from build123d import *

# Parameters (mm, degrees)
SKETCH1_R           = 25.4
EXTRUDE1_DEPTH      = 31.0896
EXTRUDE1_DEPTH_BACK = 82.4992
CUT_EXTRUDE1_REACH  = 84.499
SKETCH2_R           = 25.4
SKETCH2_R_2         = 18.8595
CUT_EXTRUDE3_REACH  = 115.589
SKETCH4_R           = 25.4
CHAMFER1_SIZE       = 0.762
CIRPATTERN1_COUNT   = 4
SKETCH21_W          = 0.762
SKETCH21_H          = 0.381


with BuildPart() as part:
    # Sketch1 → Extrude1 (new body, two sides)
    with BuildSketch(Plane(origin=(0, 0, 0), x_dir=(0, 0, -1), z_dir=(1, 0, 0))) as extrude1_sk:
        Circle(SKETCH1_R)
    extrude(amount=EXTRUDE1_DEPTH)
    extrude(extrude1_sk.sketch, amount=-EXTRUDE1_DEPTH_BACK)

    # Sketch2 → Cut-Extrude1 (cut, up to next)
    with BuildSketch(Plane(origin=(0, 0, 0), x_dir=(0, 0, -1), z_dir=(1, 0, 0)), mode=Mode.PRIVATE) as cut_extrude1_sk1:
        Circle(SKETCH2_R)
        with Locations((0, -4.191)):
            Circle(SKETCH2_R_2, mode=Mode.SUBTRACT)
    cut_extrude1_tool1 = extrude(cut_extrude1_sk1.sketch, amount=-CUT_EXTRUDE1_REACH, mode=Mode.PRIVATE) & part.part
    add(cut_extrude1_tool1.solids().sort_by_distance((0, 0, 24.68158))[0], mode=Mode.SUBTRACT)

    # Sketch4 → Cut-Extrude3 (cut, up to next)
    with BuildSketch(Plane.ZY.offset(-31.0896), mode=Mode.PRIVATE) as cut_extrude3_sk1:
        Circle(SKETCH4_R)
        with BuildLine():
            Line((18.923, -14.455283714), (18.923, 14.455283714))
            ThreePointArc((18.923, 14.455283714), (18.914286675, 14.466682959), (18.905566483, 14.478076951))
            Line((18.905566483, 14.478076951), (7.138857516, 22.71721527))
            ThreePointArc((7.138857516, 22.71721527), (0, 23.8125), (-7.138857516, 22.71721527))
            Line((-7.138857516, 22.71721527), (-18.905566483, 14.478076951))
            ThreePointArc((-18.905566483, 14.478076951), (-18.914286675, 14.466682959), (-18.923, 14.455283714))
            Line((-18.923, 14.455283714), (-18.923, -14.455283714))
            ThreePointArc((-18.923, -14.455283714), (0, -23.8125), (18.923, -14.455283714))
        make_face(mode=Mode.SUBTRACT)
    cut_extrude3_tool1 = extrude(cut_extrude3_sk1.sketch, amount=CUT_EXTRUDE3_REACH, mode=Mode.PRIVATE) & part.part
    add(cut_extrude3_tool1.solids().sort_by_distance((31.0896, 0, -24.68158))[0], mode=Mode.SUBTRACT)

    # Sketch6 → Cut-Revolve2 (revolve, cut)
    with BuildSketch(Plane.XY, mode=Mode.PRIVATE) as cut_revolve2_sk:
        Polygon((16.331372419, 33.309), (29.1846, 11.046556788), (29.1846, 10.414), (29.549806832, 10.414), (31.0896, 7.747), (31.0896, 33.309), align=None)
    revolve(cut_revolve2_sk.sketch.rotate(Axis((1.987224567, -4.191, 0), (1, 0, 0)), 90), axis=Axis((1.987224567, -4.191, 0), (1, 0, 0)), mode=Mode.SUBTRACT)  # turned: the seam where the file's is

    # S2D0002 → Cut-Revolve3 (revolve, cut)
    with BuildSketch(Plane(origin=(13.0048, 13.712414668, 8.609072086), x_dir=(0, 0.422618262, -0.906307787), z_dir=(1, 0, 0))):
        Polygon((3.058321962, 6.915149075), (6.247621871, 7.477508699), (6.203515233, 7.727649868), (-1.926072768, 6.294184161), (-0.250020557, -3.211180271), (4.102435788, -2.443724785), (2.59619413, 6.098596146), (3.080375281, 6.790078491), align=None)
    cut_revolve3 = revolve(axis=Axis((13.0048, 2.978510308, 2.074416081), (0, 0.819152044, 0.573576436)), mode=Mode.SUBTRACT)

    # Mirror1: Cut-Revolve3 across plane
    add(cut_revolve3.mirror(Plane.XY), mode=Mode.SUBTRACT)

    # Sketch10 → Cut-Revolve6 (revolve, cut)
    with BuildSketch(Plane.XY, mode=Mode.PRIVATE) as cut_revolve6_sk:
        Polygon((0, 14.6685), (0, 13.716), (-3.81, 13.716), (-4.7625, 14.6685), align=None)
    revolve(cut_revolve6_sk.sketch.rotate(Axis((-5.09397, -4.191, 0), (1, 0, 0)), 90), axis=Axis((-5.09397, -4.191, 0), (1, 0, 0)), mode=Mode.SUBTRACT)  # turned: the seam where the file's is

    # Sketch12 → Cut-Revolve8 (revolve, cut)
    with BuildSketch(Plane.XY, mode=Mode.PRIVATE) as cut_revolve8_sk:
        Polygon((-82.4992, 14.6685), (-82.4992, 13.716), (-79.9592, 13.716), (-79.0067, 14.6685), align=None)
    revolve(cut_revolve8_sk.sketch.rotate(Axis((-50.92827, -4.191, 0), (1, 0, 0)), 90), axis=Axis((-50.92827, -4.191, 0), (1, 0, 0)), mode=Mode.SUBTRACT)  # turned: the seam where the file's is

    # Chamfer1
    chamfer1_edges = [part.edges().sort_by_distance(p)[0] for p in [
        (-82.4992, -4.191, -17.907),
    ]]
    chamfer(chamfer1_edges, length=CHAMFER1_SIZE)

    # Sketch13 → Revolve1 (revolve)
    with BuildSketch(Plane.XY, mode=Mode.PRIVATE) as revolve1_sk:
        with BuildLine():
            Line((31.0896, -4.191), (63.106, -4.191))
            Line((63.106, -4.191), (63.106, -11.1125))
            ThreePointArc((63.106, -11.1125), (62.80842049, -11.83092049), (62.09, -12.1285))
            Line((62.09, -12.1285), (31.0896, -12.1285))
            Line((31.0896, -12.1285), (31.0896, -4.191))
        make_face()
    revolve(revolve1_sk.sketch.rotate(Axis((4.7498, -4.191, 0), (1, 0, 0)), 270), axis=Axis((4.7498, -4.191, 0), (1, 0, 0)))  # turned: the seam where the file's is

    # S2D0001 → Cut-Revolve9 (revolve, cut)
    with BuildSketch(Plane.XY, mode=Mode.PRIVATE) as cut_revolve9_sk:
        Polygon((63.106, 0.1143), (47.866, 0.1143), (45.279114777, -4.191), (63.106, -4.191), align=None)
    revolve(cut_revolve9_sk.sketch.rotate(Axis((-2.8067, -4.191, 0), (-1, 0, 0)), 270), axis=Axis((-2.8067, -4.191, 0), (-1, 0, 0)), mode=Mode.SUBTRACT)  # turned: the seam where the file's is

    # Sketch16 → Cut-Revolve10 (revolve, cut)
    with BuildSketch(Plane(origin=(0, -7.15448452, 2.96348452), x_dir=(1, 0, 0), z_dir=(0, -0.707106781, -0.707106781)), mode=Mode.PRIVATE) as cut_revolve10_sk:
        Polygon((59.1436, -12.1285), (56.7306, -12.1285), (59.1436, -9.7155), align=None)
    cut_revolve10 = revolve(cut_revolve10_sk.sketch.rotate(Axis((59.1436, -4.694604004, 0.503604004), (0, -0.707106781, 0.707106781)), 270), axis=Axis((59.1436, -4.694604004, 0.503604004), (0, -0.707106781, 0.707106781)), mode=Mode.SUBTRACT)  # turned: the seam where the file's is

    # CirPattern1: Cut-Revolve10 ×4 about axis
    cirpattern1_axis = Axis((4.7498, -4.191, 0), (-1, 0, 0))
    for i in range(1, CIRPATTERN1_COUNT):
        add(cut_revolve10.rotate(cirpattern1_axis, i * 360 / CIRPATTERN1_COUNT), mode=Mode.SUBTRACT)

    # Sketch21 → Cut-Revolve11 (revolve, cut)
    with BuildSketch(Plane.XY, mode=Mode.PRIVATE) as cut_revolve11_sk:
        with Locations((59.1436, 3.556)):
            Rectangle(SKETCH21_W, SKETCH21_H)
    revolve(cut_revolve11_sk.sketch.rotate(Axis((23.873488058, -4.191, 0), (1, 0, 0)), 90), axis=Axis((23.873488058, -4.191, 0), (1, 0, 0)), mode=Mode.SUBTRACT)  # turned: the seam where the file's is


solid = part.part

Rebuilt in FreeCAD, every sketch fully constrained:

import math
import FreeCAD as App
import Part
import Sketcher
from FreeCAD import Vector
Q = App.Units.Quantity


def edges_at(feature, points):
    """Names of the edges that pass closest to the given points."""
    edges = feature.Shape.Edges
    near = lambda p: min(range(len(edges)), key=lambda i: edges[i].distToShape(Part.Vertex(*p))[0])
    return sorted({f"Edge{near(p) + 1}" for p in points})

doc = App.newDocument("Part")
body = doc.addObject("PartDesign::Body", "Body")

# Sketch on YZ plane
sketch1 = body.newObject("Sketcher::SketchObject", "Sketch")
sketch1.AttachmentSupport = (doc.getObject("YZ_Plane"), [""])
sketch1.MapMode = "FlatFace"
sketch1.addGeometry(Part.Circle(Vector(0, 0, 0), Vector(0, 0, 1), 25.4), False)
sketch1.addConstraint([
    Sketcher.Constraint("Coincident", 0, 3, -1, 1),
    Sketcher.Constraint("Diameter", 0, Q("2 in")),
])
pad1 = body.newObject("PartDesign::Pad", "Pad")
pad1.Profile = sketch1
pad1.Type = "TwoLengths"
pad1.Length = Q("1.224 in")
pad1.Length2 = Q("3.248 in")

# Sketch on YZ plane
sketch2 = body.newObject("Sketcher::SketchObject", "Sketch001")
sketch2.AttachmentSupport = (doc.getObject("YZ_Plane"), [""])
sketch2.MapMode = "FlatFace"
sketch2.addGeometry([
    Part.Circle(Vector(0, 0, 0), Vector(0, 0, 1), 25.4),
    Part.Circle(Vector(-4.191, 0, 0), Vector(0, 0, 1), 18.8595),
], False)
sketch2.addConstraint([
    Sketcher.Constraint("Coincident", 0, 3, -1, 1),
    Sketcher.Constraint("PointOnObject", 1, 3, -1),
    Sketcher.Constraint("Diameter", 0, Q("2 in")),
    Sketcher.Constraint("Diameter", 1, Q("1.485 in")),
    Sketcher.Constraint("DistanceX", 1, 3, -1, 1, Q("0.165 in")),
])
pocket1 = body.newObject("PartDesign::Pocket", "Pocket")
pocket1.Profile = sketch2
pocket1.Type = "UpToFirst"

# Sketch on YZ plane
sketch3 = body.newObject("Sketcher::SketchObject", "Sketch002")
sketch3.AttachmentSupport = (doc.getObject("YZ_Plane"), [""])
sketch3.MapMode = "FlatFace"
sketch3.AttachmentOffset = App.Placement(Vector(0, 0, 1.224 * 25.4), App.Rotation())
sketch3.addGeometry([
    Part.Circle(Vector(0, 0, 0), Vector(0, 0, 1), 25.4),  # 0
    Part.LineSegment(Vector(14.455284, 18.923, 0), Vector(-14.455284, 18.923, 0)),  # 1
    Part.ArcOfCircle(Part.Circle(Vector(0, 0, 0), Vector(0, 0, 1), 23.8125), math.radians(127.376217), math.radians(232.623783)),  # 2
    Part.LineSegment(Vector(-14.455284, -18.923, 0), Vector(14.455284, -18.923, 0)),  # 3
    Part.ArcOfCircle(Part.Circle(Vector(0.000919, -0.001202, 0), Vector(0, 0, 1), 23.810987), math.radians(-52.623785), math.radians(-52.554734)),  # 4
    Part.LineSegment(Vector(14.478077, -18.905566, 0), Vector(22.717215, -7.138858, 0)),  # 5
    Part.ArcOfCircle(Part.Circle(Vector(0, 0, 0), Vector(0, 0, 1), 23.8125), math.radians(-17.445263), math.radians(17.445263)),  # 6
    Part.LineSegment(Vector(22.717215, 7.138858, 0), Vector(14.478077, 18.905566, 0)),  # 7
    Part.ArcOfCircle(Part.Circle(Vector(0.000919, 0.001202, 0), Vector(0, 0, 1), 23.810987), math.radians(52.554734), math.radians(52.623785)),  # 8
], False)
sketch3.addConstraint([
    Sketcher.Constraint("Coincident", 1, 2, 2, 1),
    Sketcher.Constraint("Coincident", 2, 2, 3, 1),
    Sketcher.Constraint("Coincident", 3, 2, 4, 1),
    Sketcher.Constraint("Coincident", 4, 2, 5, 1),
    Sketcher.Constraint("Coincident", 5, 2, 6, 1),
    Sketcher.Constraint("Coincident", 6, 2, 7, 1),
    Sketcher.Constraint("Coincident", 7, 2, 8, 1),
    Sketcher.Constraint("Coincident", 8, 2, 1, 1),
    Sketcher.Constraint("Horizontal", 1),
    Sketcher.Constraint("Horizontal", 3),
    Sketcher.Constraint("Coincident", 0, 3, -1, 1),
    Sketcher.Constraint("Coincident", 2, 3, -1, 1),
    Sketcher.Constraint("Coincident", 6, 3, -1, 1),
    Sketcher.Constraint("Equal", 2, 6),
    Sketcher.Constraint("Equal", 4, 8),
    Sketcher.Constraint("Symmetric", 1, 2, 3, 2, -1, 1),
    Sketcher.Constraint("Symmetric", 4, 3, 8, 3, -1),
    Sketcher.Constraint("Vertical", 5, 2, 6, 2),
    Sketcher.Constraint("Vertical", 4, 2, 7, 2),
    Sketcher.Constraint("Diameter", 0, Q("2 in")),
    Sketcher.Constraint("Angle", 5, Q("55 deg")),
    Sketcher.Constraint("Radius", 2, Q("0.9375 in")),
    Sketcher.Constraint("DistanceY", -1, 1, 1, 2, Q("0.745 in")),
    Sketcher.Constraint("Radius", 4, Q("23.810987 mm")),
    Sketcher.Constraint("Distance", 5, Q("14.364499 mm")),
    Sketcher.Constraint("DistanceY", 4, 3, -1, 1, Q("0.001202 mm")),
])
pocket2 = body.newObject("PartDesign::Pocket", "Pocket001")
pocket2.Profile = sketch3
pocket2.Type = "UpToFirst"

# Sketch on XY plane
sketch4 = body.newObject("Sketcher::SketchObject", "Sketch003")
sketch4.AttachmentSupport = (doc.getObject("XY_Plane"), [""])
sketch4.MapMode = "FlatFace"
sketch4.addGeometry([
    Part.LineSegment(Vector(16.331372, 33.309, 0), Vector(29.1846, 11.046557, 0)),  # 0
    Part.LineSegment(Vector(29.1846, 11.046557, 0), Vector(29.1846, 10.414, 0)),  # 1
    Part.LineSegment(Vector(29.1846, 10.414, 0), Vector(29.549807, 10.414, 0)),  # 2
    Part.LineSegment(Vector(29.549807, 10.414, 0), Vector(31.0896, 7.747, 0)),  # 3
    Part.LineSegment(Vector(31.0896, 7.747, 0), Vector(31.0896, 33.309, 0)),  # 4
    Part.LineSegment(Vector(31.0896, 33.309, 0), Vector(16.331372, 33.309, 0)),  # 5
], False)
sketch4.addGeometry(Part.LineSegment(Vector(16.331372, -4.191, 0), Vector(31.0896, -4.191, 0)), True)  # axis
sketch4.addConstraint([
    Sketcher.Constraint("Coincident", 0, 2, 1, 1),
    Sketcher.Constraint("Coincident", 1, 2, 2, 1),
    Sketcher.Constraint("Coincident", 2, 2, 3, 1),
    Sketcher.Constraint("Coincident", 3, 2, 4, 1),
    Sketcher.Constraint("Coincident", 4, 2, 5, 1),
    Sketcher.Constraint("Coincident", 5, 2, 0, 1),
    Sketcher.Constraint("Vertical", 1),
    Sketcher.Constraint("Horizontal", 2),
    Sketcher.Constraint("Vertical", 4),
    Sketcher.Constraint("Horizontal", 5),
    Sketcher.Constraint("Horizontal", 6),
    Sketcher.Constraint("Parallel", 0, 3),
    Sketcher.Constraint("Vertical", 5, 2, 6, 1),
    Sketcher.Constraint("Vertical", 4, 2, 6, 2),
    Sketcher.Constraint("Angle", 0, Q("-60 deg")),
    Sketcher.Constraint("DistanceY", -1, 1, 1, 2, Q("0.41 in")),
    Sketcher.Constraint("DistanceY", 6, 1, 3, 2, Q("0.47 in")),
    Sketcher.Constraint("DistanceX", -1, 1, 0, 2, Q("1.149 in")),
    Sketcher.Constraint("DistanceX", -1, 1, 3, 2, Q("1.224 in")),
    Sketcher.Constraint("DistanceY", -1, 1, 3, 2, Q("0.305 in")),
    Sketcher.Constraint("DistanceY", 4, 1, 4, 2, Q("25.562 mm")),
    Sketcher.Constraint("DistanceX", 5, 2, 5, 1, Q("14.758228 mm")),
])
groove = body.newObject("PartDesign::Groove", "Groove")
groove.Profile = sketch4
groove.ReferenceAxis = (sketch4, ["Axis0"])
groove.Angle = 360

# Sketch on YZ plane
sketch5 = body.newObject("Sketcher::SketchObject", "Sketch004")
sketch5.AttachmentSupport = (doc.getObject("YZ_Plane"), [""])
sketch5.MapMode = "FlatFace"
sketch5.AttachmentOffset = App.Placement(Vector(0, 0, 0.512 * 25.4), App.Rotation())
sketch5.addGeometry([
    Part.LineSegment(Vector(21.272171, 8.759759, 0), Vector(23.129698, 6.106935, 0)),  # 0
    Part.LineSegment(Vector(23.129698, 6.106935, 0), Vector(23.337763, 6.252624, 0)),  # 1
    Part.LineSegment(Vector(23.337763, 6.252624, 0), Vector(18.602889, 13.014724, 0)),  # 2
    Part.LineSegment(Vector(18.602889, 13.014724, 0), Vector(10.696434, 7.478564, 0)),  # 3
    Part.LineSegment(Vector(10.696434, 7.478564, 0), Vector(13.231412, 3.85824, 0)),  # 4
    Part.LineSegment(Vector(13.231412, 3.85824, 0), Vector(20.336819, 8.833499, 0)),  # 5
    Part.LineSegment(Vector(20.336819, 8.833499, 0), Vector(21.168139, 8.686915, 0)),  # 6
    Part.LineSegment(Vector(21.168139, 8.686915, 0), Vector(21.272171, 8.759759, 0)),  # 7
], False)
sketch5.addGeometry(Part.LineSegment(Vector(10.696434, 7.478564, 0), Vector(18.602889, 13.014724, 0)), True)  # axis
sketch5.addConstraint([
    Sketcher.Constraint("Coincident", 0, 2, 1, 1),
    Sketcher.Constraint("Coincident", 1, 2, 2, 1),
    Sketcher.Constraint("Coincident", 2, 2, 3, 1),
    Sketcher.Constraint("Coincident", 3, 2, 4, 1),
    Sketcher.Constraint("Coincident", 4, 2, 5, 1),
    Sketcher.Constraint("Coincident", 5, 2, 6, 1),
    Sketcher.Constraint("Coincident", 6, 2, 7, 1),
    Sketcher.Constraint("Coincident", 7, 2, 0, 1),
    Sketcher.Constraint("Coincident", 8, 1, 3, 2),
    Sketcher.Constraint("Coincident", 8, 2, 2, 2),
    Sketcher.Constraint("Perpendicular", 0, 1),
    Sketcher.Constraint("Perpendicular", 1, 2),
    Sketcher.Constraint("Perpendicular", 2, 3),
    Sketcher.Constraint("Perpendicular", 3, 4),
    Sketcher.Constraint("Perpendicular", 4, 5),
    Sketcher.Constraint("Parallel", 5, 7),
    Sketcher.Constraint("Angle", 0, Q("-55 deg")),
    Sketcher.Constraint("Angle", 6, Q("-10 deg")),
    Sketcher.Constraint("Distance", 1, Q("0.01 in")),
    Sketcher.Constraint("Distance", 3, Q("0.38 in")),
    Sketcher.Constraint("Distance", 2, Q("0.325 in")),
    Sketcher.Constraint("Distance", 4, Q("0.174 in")),
    Sketcher.Constraint("Distance", 7, Q("0.005 in")),
    Sketcher.Constraint("Distance", 0, Q("0.1275 in")),
    Sketcher.Constraint("DistanceX", -1, 1, 0, 2, Q("23.129698 mm")),
    Sketcher.Constraint("DistanceY", -1, 1, 5, 2, Q("8.833499 mm")),
])
groove2 = body.newObject("PartDesign::Groove", "Groove001")
groove2.Profile = sketch5
groove2.ReferenceAxis = (sketch5, ["Axis0"])
groove2.Angle = 360
doc.recompute()

mirrored = body.newObject("PartDesign::Mirrored", "Mirrored")
mirrored.Originals = [groove2]
mirrored.MirrorPlane = (doc.getObject("XY_Plane"), [""])
body.Tip = mirrored

# Sketch on XY plane
sketch6 = body.newObject("Sketcher::SketchObject", "Sketch005")
sketch6.AttachmentSupport = (doc.getObject("XY_Plane"), [""])
sketch6.MapMode = "FlatFace"
sketch6.addGeometry([
    Part.LineSegment(Vector(0, 13.716, 0), Vector(0, 14.6685, 0)),
    Part.LineSegment(Vector(0, 14.6685, 0), Vector(-4.7625, 14.6685, 0)),
    Part.LineSegment(Vector(-4.7625, 14.6685, 0), Vector(-3.81, 13.716, 0)),
    Part.LineSegment(Vector(-3.81, 13.716, 0), Vector(0, 13.716, 0)),
], False)
sketch6.addGeometry(Part.LineSegment(Vector(-4.7625, -4.191, 0), Vector(0, -4.191, 0)), True)  # axis
sketch6.addConstraint([
    Sketcher.Constraint("Coincident", 0, 2, 1, 1),
    Sketcher.Constraint("Coincident", 1, 2, 2, 1),
    Sketcher.Constraint("Coincident", 2, 2, 3, 1),
    Sketcher.Constraint("Coincident", 3, 2, 0, 1),
    Sketcher.Constraint("Vertical", 0),
    Sketcher.Constraint("Horizontal", 1),
    Sketcher.Constraint("Horizontal", 3),
    Sketcher.Constraint("Horizontal", 4),
    Sketcher.Constraint("PointOnObject", 0, 2, -2),
    Sketcher.Constraint("PointOnObject", 4, 2, -2),
    Sketcher.Constraint("Vertical", 1, 2, 4, 1),
    Sketcher.Constraint("Angle", 2, Q("-45 deg")),
    Sketcher.Constraint("DistanceX", 3, 1, 3, 2, Q("0.15 in")),
    Sketcher.Constraint("DistanceX", 1, 2, 1, 1, Q("0.1875 in")),
    Sketcher.Constraint("DistanceY", -1, 1, 2, 2, Q("0.54 in")),
    Sketcher.Constraint("DistanceY", 4, 1, -1, 1, Q("0.165 in")),
])
groove3 = body.newObject("PartDesign::Groove", "Groove002")
groove3.Profile = sketch6
groove3.ReferenceAxis = (sketch6, ["Axis0"])
groove3.Angle = 360

# Sketch on XY plane
sketch7 = body.newObject("Sketcher::SketchObject", "Sketch006")
sketch7.AttachmentSupport = (doc.getObject("XY_Plane"), [""])
sketch7.MapMode = "FlatFace"
sketch7.addGeometry([
    Part.LineSegment(Vector(-82.4992, 14.6685, 0), Vector(-82.4992, 13.716, 0)),
    Part.LineSegment(Vector(-82.4992, 13.716, 0), Vector(-79.9592, 13.716, 0)),
    Part.LineSegment(Vector(-79.9592, 13.716, 0), Vector(-79.0067, 14.6685, 0)),
    Part.LineSegment(Vector(-79.0067, 14.6685, 0), Vector(-82.4992, 14.6685, 0)),
], False)
sketch7.addGeometry(Part.LineSegment(Vector(-82.4992, -4.191, 0), Vector(-79.0067, -4.191, 0)), True)  # axis
sketch7.addConstraint([
    Sketcher.Constraint("Coincident", 0, 2, 1, 1),
    Sketcher.Constraint("Coincident", 1, 2, 2, 1),
    Sketcher.Constraint("Coincident", 2, 2, 3, 1),
    Sketcher.Constraint("Coincident", 3, 2, 0, 1),
    Sketcher.Constraint("Vertical", 0),
    Sketcher.Constraint("Horizontal", 1),
    Sketcher.Constraint("Horizontal", 3),
    Sketcher.Constraint("Horizontal", 4),
    Sketcher.Constraint("Vertical", 3, 2, 4, 1),
    Sketcher.Constraint("Vertical", 2, 2, 4, 2),
    Sketcher.Constraint("DistanceX", 1, 1, 1, 2, Q("0.1 in")),
    Sketcher.Constraint("Angle", 2, Q("45 deg")),
    Sketcher.Constraint("DistanceY", -1, 1, 0, 2, Q("0.54 in")),
    Sketcher.Constraint("DistanceX", 3, 2, 3, 1, Q("0.1375 in")),
    Sketcher.Constraint("DistanceX", 0, 2, -1, 1, Q("3.248 in")),
    Sketcher.Constraint("DistanceY", 4, 1, -1, 1, Q("0.165 in")),
])
groove4 = body.newObject("PartDesign::Groove", "Groove003")
groove4.Profile = sketch7
groove4.ReferenceAxis = (sketch7, ["Axis0"])
groove4.Angle = 360
doc.recompute()

chamfer = body.newObject("PartDesign::Chamfer", "Chamfer")
chamfer.Base = (groove4, edges_at(groove4, [(-82.499, -4.191, -17.907)]))
chamfer.Size = Q("0.03 in")

# Sketch on XY plane
sketch8 = body.newObject("Sketcher::SketchObject", "Sketch007")
sketch8.AttachmentSupport = (doc.getObject("XY_Plane"), [""])
sketch8.MapMode = "FlatFace"
sketch8.addGeometry([
    Part.LineSegment(Vector(63.106, -4.191, 0), Vector(31.0896, -4.191, 0)),  # 0
    Part.LineSegment(Vector(31.0896, -4.191, 0), Vector(31.0896, -12.1285, 0)),  # 1
    Part.LineSegment(Vector(31.0896, -12.1285, 0), Vector(62.09, -12.1285, 0)),  # 2
    Part.ArcOfCircle(Part.Circle(Vector(62.09, -11.1125, 0), Vector(0, 0, 1), 1.016), math.radians(-90), math.radians(0)),  # 3
    Part.LineSegment(Vector(63.106, -11.1125, 0), Vector(63.106, -4.191, 0)),  # 4
], False)
sketch8.addGeometry(Part.LineSegment(Vector(31.0896, -4.191, 0), Vector(63.106, -4.191, 0)), True)  # axis
sketch8.addConstraint([
    Sketcher.Constraint("Coincident", 0, 2, 1, 1),
    Sketcher.Constraint("Coincident", 1, 2, 2, 1),
    Sketcher.Constraint("Tangent", 2, 2, 3, 1),
    Sketcher.Constraint("Tangent", 3, 2, 4, 1),
    Sketcher.Constraint("Coincident", 4, 2, 0, 1),
    Sketcher.Constraint("Horizontal", 0),
    Sketcher.Constraint("Vertical", 1),
    Sketcher.Constraint("Horizontal", 2),
    Sketcher.Constraint("Vertical", 4),
    Sketcher.Constraint("Horizontal", 5),
    Sketcher.Constraint("Coincident", 5, 1, 0, 2),
    Sketcher.Constraint("Vertical", 3, 2, 5, 2),
    Sketcher.Constraint("Radius", 3, Q("0.04 in")),
    Sketcher.Constraint("DistanceY", 1, 2, 1, 1, Q("0.3125 in")),
    Sketcher.Constraint("DistanceY", 3, 3, -1, 1, Q("0.4375 in")),
    Sketcher.Constraint("DistanceX", -1, 1, 0, 2, Q("1.224 in")),
    Sketcher.Constraint("DistanceX", 0, 2, 0, 1, Q("32.0164 mm")),
])
revolution = body.newObject("PartDesign::Revolution", "Revolution")
revolution.Profile = sketch8
revolution.ReferenceAxis = (sketch8, ["Axis0"])
revolution.Angle = 360

# Sketch on XY plane
sketch9 = body.newObject("Sketcher::SketchObject", "Sketch008")
sketch9.AttachmentSupport = (doc.getObject("XY_Plane"), [""])
sketch9.MapMode = "FlatFace"
sketch9.addGeometry([
    Part.LineSegment(Vector(63.106, 0.1143, 0), Vector(47.866, 0.1143, 0)),
    Part.LineSegment(Vector(47.866, 0.1143, 0), Vector(45.279115, -4.191, 0)),
    Part.LineSegment(Vector(45.279115, -4.191, 0), Vector(63.106, -4.191, 0)),
    Part.LineSegment(Vector(63.106, -4.191, 0), Vector(63.106, 0.1143, 0)),
], False)
sketch9.addGeometry(Part.LineSegment(Vector(63.106, -4.191, 0), Vector(45.279115, -4.191, 0)), True)  # axis
sketch9.addConstraint([
    Sketcher.Constraint("Coincident", 0, 2, 1, 1),
    Sketcher.Constraint("Coincident", 1, 2, 2, 1),
    Sketcher.Constraint("Coincident", 2, 2, 3, 1),
    Sketcher.Constraint("Coincident", 3, 2, 0, 1),
    Sketcher.Constraint("Horizontal", 0),
    Sketcher.Constraint("Horizontal", 2),
    Sketcher.Constraint("Vertical", 3),
    Sketcher.Constraint("Horizontal", 4),
    Sketcher.Constraint("Coincident", 4, 1, 2, 2),
    Sketcher.Constraint("Equal", 2, 4),
    Sketcher.Constraint("DistanceX", 0, 2, 0, 1, Q("0.6 in")),
    Sketcher.Constraint("Angle", 1, Q("-121 deg")),
    Sketcher.Constraint("DistanceY", 3, 1, 3, 2, Q("0.1695 in")),
    Sketcher.Constraint("DistanceY", 1, 2, -1, 1, Q("0.165 in")),
    Sketcher.Constraint("DistanceX", -1, 1, 0, 2, Q("47.866 mm")),
])
groove5 = body.newObject("PartDesign::Groove", "Groove004")
groove5.Profile = sketch9
groove5.ReferenceAxis = (sketch9, ["Axis0"])
groove5.Angle = 360

# Sketch on an angled plane
sketch10 = body.newObject("Sketcher::SketchObject", "Sketch009")
sketch10.Placement = App.Placement(Vector(0, -7.154485, 2.963485), App.Rotation(Vector(1, 0, 0), Vector(0, -0.707106781, 0.707106781), Vector(0, -0.707106781, -0.707106781), "ZXY"))
sketch10.addGeometry([
    Part.LineSegment(Vector(56.7306, -12.1285, 0), Vector(59.1436, -12.1285, 0)),
    Part.LineSegment(Vector(59.1436, -12.1285, 0), Vector(59.1436, -9.7155, 0)),
    Part.LineSegment(Vector(59.1436, -9.7155, 0), Vector(56.7306, -12.1285, 0)),
], False)
sketch10.addGeometry(Part.LineSegment(Vector(59.1436, -12.1285, 0), Vector(59.1436, -9.7155, 0)), True)  # axis
sketch10.addConstraint([
    Sketcher.Constraint("Coincident", 0, 2, 1, 1),
    Sketcher.Constraint("Coincident", 1, 2, 2, 1),
    Sketcher.Constraint("Coincident", 2, 2, 0, 1),
    Sketcher.Constraint("Horizontal", 0),
    Sketcher.Constraint("Vertical", 1),
    Sketcher.Constraint("Vertical", 3),
    Sketcher.Constraint("Coincident", 3, 1, 0, 2),
    Sketcher.Constraint("Equal", 0, 1),
    Sketcher.Constraint("Equal", 1, 3),
    Sketcher.Constraint("DistanceX", 0, 1, 0, 2, Q("0.095 in")),
    Sketcher.Constraint("DistanceY", 0, 2, -1, 1, Q("0.4775 in")),
    Sketcher.Constraint("DistanceX", -1, 1, 0, 2, Q("59.1436 mm")),
])
groove6 = body.newObject("PartDesign::Groove", "Groove005")
groove6.Profile = sketch10
groove6.ReferenceAxis = (sketch10, ["Axis0"])
groove6.Angle = 360
doc.recompute()

datumline = body.newObject("PartDesign::Line", "DatumLine")
datumline.Placement = App.Placement(Vector(0, -4.191, 0), App.Rotation(Vector(0, 0, 1), Vector(-1, 0, 0)))
polarpattern = body.newObject("PartDesign::PolarPattern", "PolarPattern")
polarpattern.Originals = [groove6]
polarpattern.Axis = (datumline, [""])
polarpattern.Angle = 360
polarpattern.Occurrences = 4
body.Tip = polarpattern

# Sketch on XY plane
sketch11 = body.newObject("Sketcher::SketchObject", "Sketch010")
sketch11.AttachmentSupport = (doc.getObject("XY_Plane"), [""])
sketch11.MapMode = "FlatFace"
sketch11.addGeometry([
    Part.LineSegment(Vector(58.7626, 3.7465, 0), Vector(58.7626, 3.3655, 0)),
    Part.LineSegment(Vector(58.7626, 3.3655, 0), Vector(59.5246, 3.3655, 0)),
    Part.LineSegment(Vector(59.5246, 3.3655, 0), Vector(59.5246, 3.7465, 0)),
    Part.LineSegment(Vector(59.5246, 3.7465, 0), Vector(58.7626, 3.7465, 0)),
], False)
sketch11.addGeometry(Part.LineSegment(Vector(58.7626, -4.191, 0), Vector(59.5246, -4.191, 0)), True)  # axis
sketch11.addConstraint([
    Sketcher.Constraint("Coincident", 0, 2, 1, 1),
    Sketcher.Constraint("Coincident", 1, 2, 2, 1),
    Sketcher.Constraint("Coincident", 2, 2, 3, 1),
    Sketcher.Constraint("Coincident", 3, 2, 0, 1),
    Sketcher.Constraint("Vertical", 0),
    Sketcher.Constraint("Horizontal", 1),
    Sketcher.Constraint("Vertical", 2),
    Sketcher.Constraint("Horizontal", 3),
    Sketcher.Constraint("Horizontal", 4),
    Sketcher.Constraint("Vertical", 3, 2, 4, 1),
    Sketcher.Constraint("Vertical", 2, 2, 4, 2),
    Sketcher.Constraint("DistanceX", 1, 1, 1, 2, Q("0.03 in")),
    Sketcher.Constraint("DistanceY", 0, 2, 0, 1, Q("0.015 in")),
    Sketcher.Constraint("DistanceY", 4, 1, -1, 1, Q("0.165 in")),
    Sketcher.Constraint("DistanceY", 4, 1, 3, 2, Q("0.3125 in")),
    Sketcher.Constraint("DistanceX", -1, 1, 0, 2, Q("58.7626 mm")),
])
groove7 = body.newObject("PartDesign::Groove", "Groove006")
groove7.Profile = sketch11
groove7.ReferenceAxis = (sketch11, ["Axis0"])
groove7.Angle = 360

doc.recompute()
